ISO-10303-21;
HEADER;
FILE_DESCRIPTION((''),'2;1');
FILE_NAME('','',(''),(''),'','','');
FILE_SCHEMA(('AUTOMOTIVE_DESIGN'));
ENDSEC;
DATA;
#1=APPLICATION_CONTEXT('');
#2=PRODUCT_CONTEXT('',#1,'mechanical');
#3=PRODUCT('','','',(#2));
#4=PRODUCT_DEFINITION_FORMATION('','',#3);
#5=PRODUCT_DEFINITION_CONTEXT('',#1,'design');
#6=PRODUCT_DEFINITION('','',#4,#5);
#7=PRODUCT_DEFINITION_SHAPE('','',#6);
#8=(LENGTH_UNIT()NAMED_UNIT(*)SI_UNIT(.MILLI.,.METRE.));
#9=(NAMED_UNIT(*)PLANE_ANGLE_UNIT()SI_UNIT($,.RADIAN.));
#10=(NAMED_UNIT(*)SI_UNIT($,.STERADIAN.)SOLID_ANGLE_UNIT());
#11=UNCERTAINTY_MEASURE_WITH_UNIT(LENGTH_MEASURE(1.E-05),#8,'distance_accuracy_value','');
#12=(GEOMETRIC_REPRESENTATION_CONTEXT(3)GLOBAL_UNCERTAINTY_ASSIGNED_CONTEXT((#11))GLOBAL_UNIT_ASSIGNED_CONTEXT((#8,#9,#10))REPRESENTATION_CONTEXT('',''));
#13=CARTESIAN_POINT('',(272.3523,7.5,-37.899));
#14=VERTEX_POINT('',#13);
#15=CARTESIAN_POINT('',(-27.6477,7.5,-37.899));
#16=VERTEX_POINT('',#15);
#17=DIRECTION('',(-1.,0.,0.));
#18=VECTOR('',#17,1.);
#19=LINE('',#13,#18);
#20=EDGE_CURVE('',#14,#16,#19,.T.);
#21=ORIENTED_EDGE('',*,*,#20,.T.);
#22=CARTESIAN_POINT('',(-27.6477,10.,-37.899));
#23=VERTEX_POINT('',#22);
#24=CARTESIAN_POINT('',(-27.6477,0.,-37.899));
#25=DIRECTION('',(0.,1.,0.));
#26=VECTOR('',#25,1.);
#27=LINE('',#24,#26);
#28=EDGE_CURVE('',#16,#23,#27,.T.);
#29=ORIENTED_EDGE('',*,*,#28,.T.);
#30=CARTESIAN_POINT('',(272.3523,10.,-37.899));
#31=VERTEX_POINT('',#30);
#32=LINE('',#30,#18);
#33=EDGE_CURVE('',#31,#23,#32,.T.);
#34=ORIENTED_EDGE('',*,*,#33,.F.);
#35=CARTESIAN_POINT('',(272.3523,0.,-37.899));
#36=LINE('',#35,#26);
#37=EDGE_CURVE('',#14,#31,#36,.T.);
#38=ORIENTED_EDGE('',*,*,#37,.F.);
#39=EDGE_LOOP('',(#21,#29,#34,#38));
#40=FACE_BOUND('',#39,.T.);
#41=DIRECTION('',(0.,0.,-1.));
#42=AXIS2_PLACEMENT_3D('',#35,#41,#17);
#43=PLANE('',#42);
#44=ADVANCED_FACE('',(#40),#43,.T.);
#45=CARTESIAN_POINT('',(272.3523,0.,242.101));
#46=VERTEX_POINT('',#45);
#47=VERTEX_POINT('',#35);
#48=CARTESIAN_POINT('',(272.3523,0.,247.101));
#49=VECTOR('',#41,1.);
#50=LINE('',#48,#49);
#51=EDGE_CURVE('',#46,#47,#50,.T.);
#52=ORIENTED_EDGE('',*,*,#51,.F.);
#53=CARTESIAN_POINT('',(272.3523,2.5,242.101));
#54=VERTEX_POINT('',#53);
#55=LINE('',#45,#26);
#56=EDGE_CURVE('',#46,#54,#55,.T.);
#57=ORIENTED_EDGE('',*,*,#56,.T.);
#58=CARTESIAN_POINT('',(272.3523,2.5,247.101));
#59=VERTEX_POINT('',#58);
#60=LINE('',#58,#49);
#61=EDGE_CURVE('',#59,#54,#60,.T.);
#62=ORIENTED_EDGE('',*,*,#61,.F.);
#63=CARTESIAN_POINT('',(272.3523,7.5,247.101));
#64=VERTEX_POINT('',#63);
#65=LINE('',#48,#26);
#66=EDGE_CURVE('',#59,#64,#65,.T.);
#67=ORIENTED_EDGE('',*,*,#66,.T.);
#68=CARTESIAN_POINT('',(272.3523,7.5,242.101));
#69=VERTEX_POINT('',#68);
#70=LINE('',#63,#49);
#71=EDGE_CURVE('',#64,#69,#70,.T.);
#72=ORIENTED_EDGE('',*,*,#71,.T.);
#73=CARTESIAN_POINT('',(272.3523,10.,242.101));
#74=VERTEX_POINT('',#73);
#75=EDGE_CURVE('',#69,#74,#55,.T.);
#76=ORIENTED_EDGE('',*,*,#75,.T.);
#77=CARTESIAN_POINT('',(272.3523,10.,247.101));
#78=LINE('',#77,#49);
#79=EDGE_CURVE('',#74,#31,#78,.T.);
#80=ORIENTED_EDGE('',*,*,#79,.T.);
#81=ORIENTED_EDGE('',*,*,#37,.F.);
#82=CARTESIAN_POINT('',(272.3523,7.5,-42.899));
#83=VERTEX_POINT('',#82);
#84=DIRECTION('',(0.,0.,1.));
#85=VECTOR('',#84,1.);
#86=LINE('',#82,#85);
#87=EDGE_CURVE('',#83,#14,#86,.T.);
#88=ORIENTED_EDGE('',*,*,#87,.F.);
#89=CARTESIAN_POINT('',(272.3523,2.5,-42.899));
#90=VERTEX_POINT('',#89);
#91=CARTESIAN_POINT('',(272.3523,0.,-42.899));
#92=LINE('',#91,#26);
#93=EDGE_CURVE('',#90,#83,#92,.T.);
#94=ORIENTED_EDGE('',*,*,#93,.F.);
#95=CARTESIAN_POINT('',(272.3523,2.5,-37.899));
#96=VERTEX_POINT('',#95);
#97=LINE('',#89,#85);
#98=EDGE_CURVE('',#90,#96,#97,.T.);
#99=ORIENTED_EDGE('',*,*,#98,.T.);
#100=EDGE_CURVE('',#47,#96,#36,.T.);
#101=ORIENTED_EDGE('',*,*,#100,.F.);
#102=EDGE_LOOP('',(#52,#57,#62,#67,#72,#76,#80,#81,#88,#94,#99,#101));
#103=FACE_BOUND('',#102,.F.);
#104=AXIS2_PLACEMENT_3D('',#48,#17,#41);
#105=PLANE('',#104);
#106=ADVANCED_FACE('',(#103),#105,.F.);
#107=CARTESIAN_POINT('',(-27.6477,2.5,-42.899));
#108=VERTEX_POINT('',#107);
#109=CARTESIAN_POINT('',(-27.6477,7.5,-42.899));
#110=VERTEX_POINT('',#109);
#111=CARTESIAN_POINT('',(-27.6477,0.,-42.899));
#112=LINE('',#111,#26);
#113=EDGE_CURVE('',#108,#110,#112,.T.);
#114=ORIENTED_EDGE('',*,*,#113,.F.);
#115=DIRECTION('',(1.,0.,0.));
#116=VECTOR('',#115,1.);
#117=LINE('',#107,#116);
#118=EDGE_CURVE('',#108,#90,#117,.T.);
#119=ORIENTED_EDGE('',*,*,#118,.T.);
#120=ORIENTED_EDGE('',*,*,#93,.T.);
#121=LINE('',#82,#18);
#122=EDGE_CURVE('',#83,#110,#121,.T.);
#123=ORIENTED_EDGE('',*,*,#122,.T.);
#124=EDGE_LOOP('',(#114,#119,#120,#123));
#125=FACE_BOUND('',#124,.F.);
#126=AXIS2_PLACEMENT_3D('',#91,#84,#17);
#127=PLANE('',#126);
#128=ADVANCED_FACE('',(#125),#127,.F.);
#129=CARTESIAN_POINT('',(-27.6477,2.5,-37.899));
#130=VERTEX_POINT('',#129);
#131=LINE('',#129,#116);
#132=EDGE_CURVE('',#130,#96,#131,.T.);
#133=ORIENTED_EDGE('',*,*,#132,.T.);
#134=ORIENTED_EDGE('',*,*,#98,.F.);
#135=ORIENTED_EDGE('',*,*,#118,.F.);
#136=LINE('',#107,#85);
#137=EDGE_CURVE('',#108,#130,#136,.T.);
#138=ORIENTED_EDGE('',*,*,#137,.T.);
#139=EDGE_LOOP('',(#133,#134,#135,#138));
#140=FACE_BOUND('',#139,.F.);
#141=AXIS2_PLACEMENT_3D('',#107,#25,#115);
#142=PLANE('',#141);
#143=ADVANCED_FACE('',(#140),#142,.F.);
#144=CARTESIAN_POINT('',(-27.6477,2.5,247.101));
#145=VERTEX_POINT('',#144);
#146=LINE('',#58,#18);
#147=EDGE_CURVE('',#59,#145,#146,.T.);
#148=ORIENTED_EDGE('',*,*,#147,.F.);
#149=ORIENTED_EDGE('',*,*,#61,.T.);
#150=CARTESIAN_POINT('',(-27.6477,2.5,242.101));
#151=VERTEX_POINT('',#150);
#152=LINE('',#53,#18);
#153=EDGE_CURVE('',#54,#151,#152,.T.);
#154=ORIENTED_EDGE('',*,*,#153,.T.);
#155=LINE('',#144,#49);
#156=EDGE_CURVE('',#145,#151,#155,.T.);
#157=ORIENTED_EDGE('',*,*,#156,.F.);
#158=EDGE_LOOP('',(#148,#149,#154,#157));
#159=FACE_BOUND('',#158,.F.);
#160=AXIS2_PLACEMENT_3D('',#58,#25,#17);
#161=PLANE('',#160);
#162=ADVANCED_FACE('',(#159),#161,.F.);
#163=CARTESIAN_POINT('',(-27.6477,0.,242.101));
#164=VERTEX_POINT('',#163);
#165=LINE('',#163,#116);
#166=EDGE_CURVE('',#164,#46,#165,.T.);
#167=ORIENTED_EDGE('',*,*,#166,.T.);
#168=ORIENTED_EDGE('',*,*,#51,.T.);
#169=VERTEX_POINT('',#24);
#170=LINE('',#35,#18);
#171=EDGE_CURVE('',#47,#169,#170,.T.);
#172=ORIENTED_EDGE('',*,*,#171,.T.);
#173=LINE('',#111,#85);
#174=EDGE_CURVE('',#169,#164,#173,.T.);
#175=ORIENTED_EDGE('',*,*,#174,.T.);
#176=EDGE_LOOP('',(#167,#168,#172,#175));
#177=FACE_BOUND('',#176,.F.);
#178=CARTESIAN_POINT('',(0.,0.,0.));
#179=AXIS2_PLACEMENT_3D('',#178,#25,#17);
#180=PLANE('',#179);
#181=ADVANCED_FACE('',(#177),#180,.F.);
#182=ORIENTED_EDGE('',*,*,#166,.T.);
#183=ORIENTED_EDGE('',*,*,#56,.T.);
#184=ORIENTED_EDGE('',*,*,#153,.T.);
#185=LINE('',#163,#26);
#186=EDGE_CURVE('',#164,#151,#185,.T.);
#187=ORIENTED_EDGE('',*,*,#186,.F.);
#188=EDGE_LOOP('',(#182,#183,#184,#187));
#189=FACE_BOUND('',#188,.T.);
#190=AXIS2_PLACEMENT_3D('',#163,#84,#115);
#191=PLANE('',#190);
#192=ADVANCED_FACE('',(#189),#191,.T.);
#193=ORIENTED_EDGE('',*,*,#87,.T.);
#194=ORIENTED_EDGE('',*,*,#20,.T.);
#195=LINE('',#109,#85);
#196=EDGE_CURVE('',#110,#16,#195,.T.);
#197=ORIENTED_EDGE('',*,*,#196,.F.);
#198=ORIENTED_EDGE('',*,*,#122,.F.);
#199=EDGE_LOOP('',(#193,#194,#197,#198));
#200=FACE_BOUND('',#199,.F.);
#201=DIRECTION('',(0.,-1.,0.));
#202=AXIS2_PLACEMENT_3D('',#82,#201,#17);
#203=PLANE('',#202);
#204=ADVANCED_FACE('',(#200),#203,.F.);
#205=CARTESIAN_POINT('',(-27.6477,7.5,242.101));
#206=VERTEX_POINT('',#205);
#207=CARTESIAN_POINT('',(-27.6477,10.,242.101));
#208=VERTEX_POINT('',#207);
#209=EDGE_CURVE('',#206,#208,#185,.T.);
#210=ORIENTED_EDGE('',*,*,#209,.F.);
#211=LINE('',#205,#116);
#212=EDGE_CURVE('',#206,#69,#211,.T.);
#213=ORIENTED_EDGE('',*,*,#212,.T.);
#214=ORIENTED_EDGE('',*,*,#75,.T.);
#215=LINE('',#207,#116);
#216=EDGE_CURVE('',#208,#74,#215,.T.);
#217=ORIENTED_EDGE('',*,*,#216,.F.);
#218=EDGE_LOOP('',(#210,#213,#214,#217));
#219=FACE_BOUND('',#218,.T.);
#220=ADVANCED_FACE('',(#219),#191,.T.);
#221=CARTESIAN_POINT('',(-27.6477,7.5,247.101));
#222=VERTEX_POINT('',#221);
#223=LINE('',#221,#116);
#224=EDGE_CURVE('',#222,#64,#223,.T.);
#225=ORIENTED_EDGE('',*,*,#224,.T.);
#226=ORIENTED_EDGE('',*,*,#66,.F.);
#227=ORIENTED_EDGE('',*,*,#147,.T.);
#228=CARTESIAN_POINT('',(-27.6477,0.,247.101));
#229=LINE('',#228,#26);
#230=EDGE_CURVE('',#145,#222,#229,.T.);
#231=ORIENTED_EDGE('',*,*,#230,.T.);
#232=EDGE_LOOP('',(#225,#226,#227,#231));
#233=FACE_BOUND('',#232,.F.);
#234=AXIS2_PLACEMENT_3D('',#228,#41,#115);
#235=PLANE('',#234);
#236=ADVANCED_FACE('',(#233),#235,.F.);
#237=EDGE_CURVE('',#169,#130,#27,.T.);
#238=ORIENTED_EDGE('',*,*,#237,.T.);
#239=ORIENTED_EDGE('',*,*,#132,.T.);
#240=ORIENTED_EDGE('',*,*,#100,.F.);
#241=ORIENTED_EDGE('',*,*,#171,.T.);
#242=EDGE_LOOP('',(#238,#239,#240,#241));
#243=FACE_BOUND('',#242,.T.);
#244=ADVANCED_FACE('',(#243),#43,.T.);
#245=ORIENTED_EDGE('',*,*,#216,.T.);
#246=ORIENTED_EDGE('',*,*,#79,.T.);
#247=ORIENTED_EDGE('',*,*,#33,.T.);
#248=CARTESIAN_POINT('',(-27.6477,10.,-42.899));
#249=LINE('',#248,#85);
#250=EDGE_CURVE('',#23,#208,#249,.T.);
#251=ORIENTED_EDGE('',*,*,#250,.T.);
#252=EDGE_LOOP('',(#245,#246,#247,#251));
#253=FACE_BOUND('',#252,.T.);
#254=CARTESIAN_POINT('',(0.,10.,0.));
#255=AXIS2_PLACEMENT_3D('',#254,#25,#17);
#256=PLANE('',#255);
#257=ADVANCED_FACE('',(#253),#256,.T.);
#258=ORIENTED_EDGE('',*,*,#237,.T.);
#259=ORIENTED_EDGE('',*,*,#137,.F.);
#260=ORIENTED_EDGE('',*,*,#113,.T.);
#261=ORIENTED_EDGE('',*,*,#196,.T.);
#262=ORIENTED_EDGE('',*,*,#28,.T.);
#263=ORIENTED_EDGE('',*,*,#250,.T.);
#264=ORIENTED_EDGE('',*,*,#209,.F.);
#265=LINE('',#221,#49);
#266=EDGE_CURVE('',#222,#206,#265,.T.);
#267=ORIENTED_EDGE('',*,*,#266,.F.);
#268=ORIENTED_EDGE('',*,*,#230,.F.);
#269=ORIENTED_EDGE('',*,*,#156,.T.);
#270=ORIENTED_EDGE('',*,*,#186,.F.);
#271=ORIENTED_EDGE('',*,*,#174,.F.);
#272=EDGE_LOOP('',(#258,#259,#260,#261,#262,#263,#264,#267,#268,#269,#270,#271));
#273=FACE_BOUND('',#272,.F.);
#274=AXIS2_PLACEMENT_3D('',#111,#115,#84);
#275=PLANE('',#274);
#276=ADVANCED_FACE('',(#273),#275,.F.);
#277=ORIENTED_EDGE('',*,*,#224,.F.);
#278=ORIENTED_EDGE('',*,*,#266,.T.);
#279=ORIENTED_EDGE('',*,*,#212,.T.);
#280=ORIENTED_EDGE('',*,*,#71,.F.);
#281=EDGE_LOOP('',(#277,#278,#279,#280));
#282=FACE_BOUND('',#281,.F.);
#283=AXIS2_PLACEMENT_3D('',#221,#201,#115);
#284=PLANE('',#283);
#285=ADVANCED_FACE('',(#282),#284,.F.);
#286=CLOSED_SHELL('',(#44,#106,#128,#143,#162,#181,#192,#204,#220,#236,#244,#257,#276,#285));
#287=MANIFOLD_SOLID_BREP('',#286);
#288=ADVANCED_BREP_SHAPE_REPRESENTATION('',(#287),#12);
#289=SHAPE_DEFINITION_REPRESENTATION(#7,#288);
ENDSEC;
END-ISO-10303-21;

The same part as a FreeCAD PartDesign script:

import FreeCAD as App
import Part
import Sketcher
from FreeCAD import Vector
Q = App.Units.Quantity


def add_polygon(sketch, points):
    """Adds a closed chain of lines whose ends are joined by coincident constraints."""
    first, n = sketch.GeometryCount, len(points)
    for a, b in zip(points, points[1:] + points[:1]):
        sketch.addGeometry(Part.LineSegment(App.Vector(*a, 0), App.Vector(*b, 0)), False)
    for i in range(n):
        sketch.addConstraint(Sketcher.Constraint("Coincident", first + i, 2, first + (i + 1) % n, 1))

doc = App.newDocument("Part")
params = doc.addObject("Spreadsheet::Sheet", "Params")
for row, (alias, value) in enumerate([
    ("sketch1_width", "300 mm"),
    ("sketch1_height", "290 mm"),
    ("pad1_length", "10 mm"),
    ("sketch2_height", "2.5 mm"),
    ("sketch2_width", "300 mm"),
    ("pocket1_length", "5 mm"),
    ("sketch3_height", "2.5 mm"),
    ("sketch3_width", "300 mm"),
    ("pocket2_length", "5 mm"),
], start=1):
    params.set(f"A{row}", alias)
    params.set(f"B{row}", "=" + value)
    params.setAlias(f"B{row}", alias)

body = doc.addObject("PartDesign::Body", "Body")

# Sketch on XZ plane
sketch1 = body.newObject("Sketcher::SketchObject", "Sketch")
sketch1.AttachmentSupport = (doc.getObject("XZ_Plane"), [""])
sketch1.MapMode = "FlatFace"
add_polygon(sketch1, [(-28, -43), (-28, 247), (272, 247), (272, -43)])  # lines 0-3
sketch1.addConstraint([
    Sketcher.Constraint("Vertical", 0),
    Sketcher.Constraint("Horizontal", 1),
    Sketcher.Constraint("Vertical", 2),
    Sketcher.Constraint("Horizontal", 3),
    Sketcher.Constraint("DistanceX", 1, 1, 1, 2, Q("300 mm")),
    Sketcher.Constraint("DistanceY", 0, 1, 0, 2, Q("290 mm")),
    Sketcher.Constraint("DistanceY", -1, 1, 0, 2, Q("247.101 mm")),
    Sketcher.Constraint("DistanceX", 0, 2, -1, 1, Q("27.6477 mm")),
])
sketch1.setExpression("Constraints[8]", "Params.sketch1_width")
sketch1.setExpression("Constraints[9]", "Params.sketch1_height")
pad1 = body.newObject("PartDesign::Pad", "Pad")
pad1.Profile = sketch1
pad1.setExpression("Length", "Params.pad1_length")
pad1.Reversed = True

# Sketch on XY plane
sketch2 = body.newObject("Sketcher::SketchObject", "Sketch001")
sketch2.AttachmentSupport = (doc.getObject("XY_Plane"), [""])
sketch2.MapMode = "FlatFace"
sketch2.AttachmentOffset = App.Placement(Vector(0, 0, 247.101), App.Rotation())
add_polygon(sketch2, [(272.4, 10), (-27.6, 10), (-27.6, 7.5), (272.4, 7.5)])  # lines 0-3
add_polygon(sketch2, [(272.4, 2.5), (-27.6, 2.5), (-27.6, 0), (272.4, 0)])  # lines 4-7
sketch2.addConstraint([
    Sketcher.Constraint("Horizontal", 0),
    Sketcher.Constraint("Vertical", 1),
    Sketcher.Constraint("Horizontal", 2),
    Sketcher.Constraint("Vertical", 3),
    Sketcher.Constraint("Horizontal", 4),
    Sketcher.Constraint("Vertical", 5),
    Sketcher.Constraint("Horizontal", 6),
    Sketcher.Constraint("Vertical", 7),
    Sketcher.Constraint("PointOnObject", 5, 2, -1),
    Sketcher.Constraint("Vertical", 1, 2, 4, 2),
    Sketcher.Constraint("Vertical", 3, 2, 6, 2),
    Sketcher.Constraint("Equal", 3, 5),
    Sketcher.Constraint("DistanceY", 1, 2, 1, 1, Q("2.5 mm")),
    Sketcher.Constraint("DistanceX", 0, 2, 0, 1, Q("300 mm")),
    Sketcher.Constraint("DistanceY", -1, 1, 0, 2, Q("10 mm")),
    Sketcher.Constraint("DistanceX", 0, 2, -1, 1, Q("27.6477 mm")),
])
sketch2.setExpression("Constraints[20]", "Params.sketch2_height")
sketch2.setExpression("Constraints[21]", "Params.sketch2_width")
pocket1 = body.newObject("PartDesign::Pocket", "Pocket")
pocket1.Profile = sketch2
pocket1.setExpression("Length", "Params.pocket1_length")

# Sketch on XY plane
sketch3 = body.newObject("Sketcher::SketchObject", "Sketch002")
sketch3.AttachmentSupport = (doc.getObject("XY_Plane"), [""])
sketch3.MapMode = "FlatFace"
sketch3.AttachmentOffset = App.Placement(Vector(0, 0, -42.899), App.Rotation())
add_polygon(sketch3, [(272.4, 2.5), (272.4, 0), (-27.6, 0), (-27.6, 2.5)])  # lines 0-3
add_polygon(sketch3, [(272.4, 10), (272.4, 7.5), (-27.6, 7.5), (-27.6, 10)])  # lines 4-7
sketch3.addConstraint([
    Sketcher.Constraint("Vertical", 0),
    Sketcher.Constraint("Horizontal", 1),
    Sketcher.Constraint("Vertical", 2),
    Sketcher.Constraint("Horizontal", 3),
    Sketcher.Constraint("Vertical", 4),
    Sketcher.Constraint("Horizontal", 5),
    Sketcher.Constraint("Vertical", 6),
    Sketcher.Constraint("Horizontal", 7),
    Sketcher.Constraint("PointOnObject", 0, 2, -1),
    Sketcher.Constraint("Vertical", 3, 2, 4, 2),
    Sketcher.Constraint("Vertical", 2, 2, 5, 2),
    Sketcher.Constraint("Equal", 2, 4),
    Sketcher.Constraint("DistanceY", 0, 2, 0, 1, Q("2.5 mm")),
    Sketcher.Constraint("DistanceX", 1, 2, 1, 1, Q("300 mm")),
    Sketcher.Constraint("DistanceY", -1, 1, 6, 2, Q("10 mm")),
    Sketcher.Constraint("DistanceX", -1, 1, 0, 2, Q("272.3523 mm")),
])
sketch3.setExpression("Constraints[20]", "Params.sketch3_height")
sketch3.setExpression("Constraints[21]", "Params.sketch3_width")
pocket2 = body.newObject("PartDesign::Pocket", "Pocket001")
pocket2.Profile = sketch3
pocket2.setExpression("Length", "Params.pocket2_length")
pocket2.Reversed = True

doc.recompute()
